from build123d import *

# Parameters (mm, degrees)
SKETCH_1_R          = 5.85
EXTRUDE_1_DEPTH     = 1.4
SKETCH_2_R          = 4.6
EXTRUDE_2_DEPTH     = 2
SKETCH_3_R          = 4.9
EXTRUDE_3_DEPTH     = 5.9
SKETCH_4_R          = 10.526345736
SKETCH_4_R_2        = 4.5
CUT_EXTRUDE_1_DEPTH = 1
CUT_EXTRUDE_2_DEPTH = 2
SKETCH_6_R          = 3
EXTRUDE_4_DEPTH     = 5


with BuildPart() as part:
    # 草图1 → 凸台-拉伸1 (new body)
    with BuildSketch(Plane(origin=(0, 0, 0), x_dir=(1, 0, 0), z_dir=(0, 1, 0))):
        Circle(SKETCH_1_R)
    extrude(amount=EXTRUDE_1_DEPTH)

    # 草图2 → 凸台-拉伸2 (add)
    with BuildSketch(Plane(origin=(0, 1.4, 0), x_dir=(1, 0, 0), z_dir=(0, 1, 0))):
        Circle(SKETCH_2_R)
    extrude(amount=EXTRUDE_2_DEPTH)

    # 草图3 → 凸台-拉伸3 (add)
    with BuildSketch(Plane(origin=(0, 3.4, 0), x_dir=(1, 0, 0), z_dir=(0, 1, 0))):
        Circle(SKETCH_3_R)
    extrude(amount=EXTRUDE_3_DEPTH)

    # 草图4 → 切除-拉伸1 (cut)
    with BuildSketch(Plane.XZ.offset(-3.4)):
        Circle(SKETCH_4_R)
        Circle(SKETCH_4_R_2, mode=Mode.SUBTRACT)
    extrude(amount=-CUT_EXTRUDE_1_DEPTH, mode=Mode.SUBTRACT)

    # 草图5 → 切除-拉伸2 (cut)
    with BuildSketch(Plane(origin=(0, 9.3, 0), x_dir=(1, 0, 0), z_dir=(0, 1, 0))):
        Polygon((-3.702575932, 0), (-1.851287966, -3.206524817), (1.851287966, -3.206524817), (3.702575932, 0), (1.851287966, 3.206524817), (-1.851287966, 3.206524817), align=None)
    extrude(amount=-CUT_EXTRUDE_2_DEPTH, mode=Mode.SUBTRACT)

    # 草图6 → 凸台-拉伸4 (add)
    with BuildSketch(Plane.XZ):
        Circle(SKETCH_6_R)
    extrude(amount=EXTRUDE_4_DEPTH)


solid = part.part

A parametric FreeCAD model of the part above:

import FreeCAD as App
import Part
import Sketcher

V = App.Vector
Q = App.Units.Quantity

doc = App.newDocument("Part")
body = doc.addObject("PartDesign::Body", "Body")

# Sketch on XZ plane
sketch1 = doc.addObject("Sketcher::SketchObject", "Sketch")
body.addObject(sketch1)
sketch1.AttachmentSupport = (doc.XZ_Plane, [""])
sketch1.MapMode = "FlatFace"
sketch1.addGeometry(Part.Circle(V(0, 0, 0), V(0, 0, 1), 6), False)
sketch1.addConstraint([
    Sketcher.Constraint("Coincident", 0, 3, -1, 1),
    Sketcher.Constraint("Diameter", 0, Q("11.7 mm")),
])
pad1 = doc.addObject("PartDesign::Pad", "Pad")
body.addObject(pad1)
pad1.Profile = sketch1
pad1.Length = 1.4
pad1.Reversed = True

# Sketch on XZ plane
sketch2 = doc.addObject("Sketcher::SketchObject", "Sketch001")
body.addObject(sketch2)
sketch2.AttachmentSupport = (doc.XZ_Plane, [""])
sketch2.MapMode = "FlatFace"
sketch2.AttachmentOffset = App.Placement(V(0, 0, -1.4), App.Rotation())
sketch2.addGeometry(Part.Circle(V(0, 0, 0), V(0, 0, 1), 4.6), False)
sketch2.addConstraint([
    Sketcher.Constraint("Coincident", 0, 3, -1, 1),
    Sketcher.Constraint("Diameter", 0, Q("9.2 mm")),
])
pad2 = doc.addObject("PartDesign::Pad", "Pad001")
body.addObject(pad2)
pad2.Profile = sketch2
pad2.Length = 2
pad2.Reversed = True

# Sketch on XZ plane
sketch3 = doc.addObject("Sketcher::SketchObject", "Sketch002")
body.addObject(sketch3)
sketch3.AttachmentSupport = (doc.XZ_Plane, [""])
sketch3.MapMode = "FlatFace"
sketch3.AttachmentOffset = App.Placement(V(0, 0, -3.4), App.Rotation())
sketch3.addGeometry(Part.Circle(V(0, 0, 0), V(0, 0, 1), 4.9), False)
sketch3.addConstraint([
    Sketcher.Constraint("Coincident", 0, 3, -1, 1),
    Sketcher.Constraint("Diameter", 0, Q("9.8 mm")),
])
pad3 = doc.addObject("PartDesign::Pad", "Pad002")
body.addObject(pad3)
pad3.Profile = sketch3
pad3.Length = 5.9
pad3.Reversed = True

# Sketch on XZ plane
sketch4 = doc.addObject("Sketcher::SketchObject", "Sketch003")
body.addObject(sketch4)
sketch4.AttachmentSupport = (doc.XZ_Plane, [""])
sketch4.MapMode = "FlatFace"
sketch4.AttachmentOffset = App.Placement(V(0, 0, -3.4), App.Rotation())
sketch4.addGeometry([
    Part.Circle(V(0, 0, 0), V(0, 0, 1), 10.5),
    Part.Circle(V(0, 0, 0), V(0, 0, 1), 4.5),
], False)
sketch4.addConstraint([
    Sketcher.Constraint("Coincident", 0, 3, -1, 1),
    Sketcher.Constraint("Coincident", 1, 3, -1, 1),
    Sketcher.Constraint("Diameter", 1, Q("9 mm")),
    Sketcher.Constraint("Diameter", 0, Q("21.052691 mm")),
])
pocket1 = doc.addObject("PartDesign::Pocket", "Pocket")
body.addObject(pocket1)
pocket1.Profile = sketch4
pocket1.Length = 1

# Sketch on XZ plane
sketch5 = doc.addObject("Sketcher::SketchObject", "Sketch004")
body.addObject(sketch5)
sketch5.AttachmentSupport = (doc.XZ_Plane, [""])
sketch5.MapMode = "FlatFace"
sketch5.AttachmentOffset = App.Placement(V(0, 0, -9.3), App.Rotation())
sketch5.addGeometry([
    Part.LineSegment(V(-3.7, 0, 0), V(-1.9, 3.2, 0)),  # 0
    Part.LineSegment(V(-1.9, 3.2, 0), V(1.9, 3.2, 0)),  # 1
    Part.LineSegment(V(1.9, 3.2, 0), V(3.7, 0, 0)),  # 2
    Part.LineSegment(V(3.7, 0, 0), V(1.9, -3.2, 0)),  # 3
    Part.LineSegment(V(1.9, -3.2, 0), V(-1.9, -3.2, 0)),  # 4
    Part.LineSegment(V(-1.9, -3.2, 0), V(-3.7, 0, 0)),  # 5
], False)
sketch5.addConstraint([
    Sketcher.Constraint("Coincident", 0, 2, 1, 1),
    Sketcher.Constraint("Coincident", 1, 2, 2, 1),
    Sketcher.Constraint("Coincident", 2, 2, 3, 1),
    Sketcher.Constraint("Coincident", 3, 2, 4, 1),
    Sketcher.Constraint("Coincident", 4, 2, 5, 1),
    Sketcher.Constraint("Coincident", 5, 2, 0, 1),
    Sketcher.Constraint("Horizontal", 1),
    Sketcher.Constraint("Horizontal", 4),
    Sketcher.Constraint("Symmetric", 0, 2, 3, 2, -1, 1),
    Sketcher.Constraint("Symmetric", 2, 2, 5, 2, -1, 1),
    Sketcher.Constraint("PointOnObject", 2, 2, -1),
    Sketcher.Constraint("Parallel", 2, 5),
    Sketcher.Constraint("Vertical", 1, 2, 3, 2),
    Sketcher.Constraint("Angle", 0, Q("60 deg")),
    Sketcher.Constraint("DistanceX", 1, 1, 1, 2, Q("3.702576 mm")),
    Sketcher.Constraint("DistanceY", 3, 2, 1, 2, Q("6.41305 mm")),
])
pocket2 = doc.addObject("PartDesign::Pocket", "Pocket001")
body.addObject(pocket2)
pocket2.Profile = sketch5
pocket2.Length = 2
pocket2.Reversed = True

# Sketch on XZ plane
sketch6 = doc.addObject("Sketcher::SketchObject", "Sketch005")
body.addObject(sketch6)
sketch6.AttachmentSupport = (doc.XZ_Plane, [""])
sketch6.MapMode = "FlatFace"
sketch6.addGeometry(Part.Circle(V(0, 0, 0), V(0, 0, 1), 3), False)
sketch6.addConstraint([
    Sketcher.Constraint("Coincident", 0, 3, -1, 1),
    Sketcher.Constraint("Diameter", 0, Q("6 mm")),
])
pad4 = doc.addObject("PartDesign::Pad", "Pad003")
body.addObject(pad4)
pad4.Profile = sketch6
pad4.Length = 5

doc.recompute()
